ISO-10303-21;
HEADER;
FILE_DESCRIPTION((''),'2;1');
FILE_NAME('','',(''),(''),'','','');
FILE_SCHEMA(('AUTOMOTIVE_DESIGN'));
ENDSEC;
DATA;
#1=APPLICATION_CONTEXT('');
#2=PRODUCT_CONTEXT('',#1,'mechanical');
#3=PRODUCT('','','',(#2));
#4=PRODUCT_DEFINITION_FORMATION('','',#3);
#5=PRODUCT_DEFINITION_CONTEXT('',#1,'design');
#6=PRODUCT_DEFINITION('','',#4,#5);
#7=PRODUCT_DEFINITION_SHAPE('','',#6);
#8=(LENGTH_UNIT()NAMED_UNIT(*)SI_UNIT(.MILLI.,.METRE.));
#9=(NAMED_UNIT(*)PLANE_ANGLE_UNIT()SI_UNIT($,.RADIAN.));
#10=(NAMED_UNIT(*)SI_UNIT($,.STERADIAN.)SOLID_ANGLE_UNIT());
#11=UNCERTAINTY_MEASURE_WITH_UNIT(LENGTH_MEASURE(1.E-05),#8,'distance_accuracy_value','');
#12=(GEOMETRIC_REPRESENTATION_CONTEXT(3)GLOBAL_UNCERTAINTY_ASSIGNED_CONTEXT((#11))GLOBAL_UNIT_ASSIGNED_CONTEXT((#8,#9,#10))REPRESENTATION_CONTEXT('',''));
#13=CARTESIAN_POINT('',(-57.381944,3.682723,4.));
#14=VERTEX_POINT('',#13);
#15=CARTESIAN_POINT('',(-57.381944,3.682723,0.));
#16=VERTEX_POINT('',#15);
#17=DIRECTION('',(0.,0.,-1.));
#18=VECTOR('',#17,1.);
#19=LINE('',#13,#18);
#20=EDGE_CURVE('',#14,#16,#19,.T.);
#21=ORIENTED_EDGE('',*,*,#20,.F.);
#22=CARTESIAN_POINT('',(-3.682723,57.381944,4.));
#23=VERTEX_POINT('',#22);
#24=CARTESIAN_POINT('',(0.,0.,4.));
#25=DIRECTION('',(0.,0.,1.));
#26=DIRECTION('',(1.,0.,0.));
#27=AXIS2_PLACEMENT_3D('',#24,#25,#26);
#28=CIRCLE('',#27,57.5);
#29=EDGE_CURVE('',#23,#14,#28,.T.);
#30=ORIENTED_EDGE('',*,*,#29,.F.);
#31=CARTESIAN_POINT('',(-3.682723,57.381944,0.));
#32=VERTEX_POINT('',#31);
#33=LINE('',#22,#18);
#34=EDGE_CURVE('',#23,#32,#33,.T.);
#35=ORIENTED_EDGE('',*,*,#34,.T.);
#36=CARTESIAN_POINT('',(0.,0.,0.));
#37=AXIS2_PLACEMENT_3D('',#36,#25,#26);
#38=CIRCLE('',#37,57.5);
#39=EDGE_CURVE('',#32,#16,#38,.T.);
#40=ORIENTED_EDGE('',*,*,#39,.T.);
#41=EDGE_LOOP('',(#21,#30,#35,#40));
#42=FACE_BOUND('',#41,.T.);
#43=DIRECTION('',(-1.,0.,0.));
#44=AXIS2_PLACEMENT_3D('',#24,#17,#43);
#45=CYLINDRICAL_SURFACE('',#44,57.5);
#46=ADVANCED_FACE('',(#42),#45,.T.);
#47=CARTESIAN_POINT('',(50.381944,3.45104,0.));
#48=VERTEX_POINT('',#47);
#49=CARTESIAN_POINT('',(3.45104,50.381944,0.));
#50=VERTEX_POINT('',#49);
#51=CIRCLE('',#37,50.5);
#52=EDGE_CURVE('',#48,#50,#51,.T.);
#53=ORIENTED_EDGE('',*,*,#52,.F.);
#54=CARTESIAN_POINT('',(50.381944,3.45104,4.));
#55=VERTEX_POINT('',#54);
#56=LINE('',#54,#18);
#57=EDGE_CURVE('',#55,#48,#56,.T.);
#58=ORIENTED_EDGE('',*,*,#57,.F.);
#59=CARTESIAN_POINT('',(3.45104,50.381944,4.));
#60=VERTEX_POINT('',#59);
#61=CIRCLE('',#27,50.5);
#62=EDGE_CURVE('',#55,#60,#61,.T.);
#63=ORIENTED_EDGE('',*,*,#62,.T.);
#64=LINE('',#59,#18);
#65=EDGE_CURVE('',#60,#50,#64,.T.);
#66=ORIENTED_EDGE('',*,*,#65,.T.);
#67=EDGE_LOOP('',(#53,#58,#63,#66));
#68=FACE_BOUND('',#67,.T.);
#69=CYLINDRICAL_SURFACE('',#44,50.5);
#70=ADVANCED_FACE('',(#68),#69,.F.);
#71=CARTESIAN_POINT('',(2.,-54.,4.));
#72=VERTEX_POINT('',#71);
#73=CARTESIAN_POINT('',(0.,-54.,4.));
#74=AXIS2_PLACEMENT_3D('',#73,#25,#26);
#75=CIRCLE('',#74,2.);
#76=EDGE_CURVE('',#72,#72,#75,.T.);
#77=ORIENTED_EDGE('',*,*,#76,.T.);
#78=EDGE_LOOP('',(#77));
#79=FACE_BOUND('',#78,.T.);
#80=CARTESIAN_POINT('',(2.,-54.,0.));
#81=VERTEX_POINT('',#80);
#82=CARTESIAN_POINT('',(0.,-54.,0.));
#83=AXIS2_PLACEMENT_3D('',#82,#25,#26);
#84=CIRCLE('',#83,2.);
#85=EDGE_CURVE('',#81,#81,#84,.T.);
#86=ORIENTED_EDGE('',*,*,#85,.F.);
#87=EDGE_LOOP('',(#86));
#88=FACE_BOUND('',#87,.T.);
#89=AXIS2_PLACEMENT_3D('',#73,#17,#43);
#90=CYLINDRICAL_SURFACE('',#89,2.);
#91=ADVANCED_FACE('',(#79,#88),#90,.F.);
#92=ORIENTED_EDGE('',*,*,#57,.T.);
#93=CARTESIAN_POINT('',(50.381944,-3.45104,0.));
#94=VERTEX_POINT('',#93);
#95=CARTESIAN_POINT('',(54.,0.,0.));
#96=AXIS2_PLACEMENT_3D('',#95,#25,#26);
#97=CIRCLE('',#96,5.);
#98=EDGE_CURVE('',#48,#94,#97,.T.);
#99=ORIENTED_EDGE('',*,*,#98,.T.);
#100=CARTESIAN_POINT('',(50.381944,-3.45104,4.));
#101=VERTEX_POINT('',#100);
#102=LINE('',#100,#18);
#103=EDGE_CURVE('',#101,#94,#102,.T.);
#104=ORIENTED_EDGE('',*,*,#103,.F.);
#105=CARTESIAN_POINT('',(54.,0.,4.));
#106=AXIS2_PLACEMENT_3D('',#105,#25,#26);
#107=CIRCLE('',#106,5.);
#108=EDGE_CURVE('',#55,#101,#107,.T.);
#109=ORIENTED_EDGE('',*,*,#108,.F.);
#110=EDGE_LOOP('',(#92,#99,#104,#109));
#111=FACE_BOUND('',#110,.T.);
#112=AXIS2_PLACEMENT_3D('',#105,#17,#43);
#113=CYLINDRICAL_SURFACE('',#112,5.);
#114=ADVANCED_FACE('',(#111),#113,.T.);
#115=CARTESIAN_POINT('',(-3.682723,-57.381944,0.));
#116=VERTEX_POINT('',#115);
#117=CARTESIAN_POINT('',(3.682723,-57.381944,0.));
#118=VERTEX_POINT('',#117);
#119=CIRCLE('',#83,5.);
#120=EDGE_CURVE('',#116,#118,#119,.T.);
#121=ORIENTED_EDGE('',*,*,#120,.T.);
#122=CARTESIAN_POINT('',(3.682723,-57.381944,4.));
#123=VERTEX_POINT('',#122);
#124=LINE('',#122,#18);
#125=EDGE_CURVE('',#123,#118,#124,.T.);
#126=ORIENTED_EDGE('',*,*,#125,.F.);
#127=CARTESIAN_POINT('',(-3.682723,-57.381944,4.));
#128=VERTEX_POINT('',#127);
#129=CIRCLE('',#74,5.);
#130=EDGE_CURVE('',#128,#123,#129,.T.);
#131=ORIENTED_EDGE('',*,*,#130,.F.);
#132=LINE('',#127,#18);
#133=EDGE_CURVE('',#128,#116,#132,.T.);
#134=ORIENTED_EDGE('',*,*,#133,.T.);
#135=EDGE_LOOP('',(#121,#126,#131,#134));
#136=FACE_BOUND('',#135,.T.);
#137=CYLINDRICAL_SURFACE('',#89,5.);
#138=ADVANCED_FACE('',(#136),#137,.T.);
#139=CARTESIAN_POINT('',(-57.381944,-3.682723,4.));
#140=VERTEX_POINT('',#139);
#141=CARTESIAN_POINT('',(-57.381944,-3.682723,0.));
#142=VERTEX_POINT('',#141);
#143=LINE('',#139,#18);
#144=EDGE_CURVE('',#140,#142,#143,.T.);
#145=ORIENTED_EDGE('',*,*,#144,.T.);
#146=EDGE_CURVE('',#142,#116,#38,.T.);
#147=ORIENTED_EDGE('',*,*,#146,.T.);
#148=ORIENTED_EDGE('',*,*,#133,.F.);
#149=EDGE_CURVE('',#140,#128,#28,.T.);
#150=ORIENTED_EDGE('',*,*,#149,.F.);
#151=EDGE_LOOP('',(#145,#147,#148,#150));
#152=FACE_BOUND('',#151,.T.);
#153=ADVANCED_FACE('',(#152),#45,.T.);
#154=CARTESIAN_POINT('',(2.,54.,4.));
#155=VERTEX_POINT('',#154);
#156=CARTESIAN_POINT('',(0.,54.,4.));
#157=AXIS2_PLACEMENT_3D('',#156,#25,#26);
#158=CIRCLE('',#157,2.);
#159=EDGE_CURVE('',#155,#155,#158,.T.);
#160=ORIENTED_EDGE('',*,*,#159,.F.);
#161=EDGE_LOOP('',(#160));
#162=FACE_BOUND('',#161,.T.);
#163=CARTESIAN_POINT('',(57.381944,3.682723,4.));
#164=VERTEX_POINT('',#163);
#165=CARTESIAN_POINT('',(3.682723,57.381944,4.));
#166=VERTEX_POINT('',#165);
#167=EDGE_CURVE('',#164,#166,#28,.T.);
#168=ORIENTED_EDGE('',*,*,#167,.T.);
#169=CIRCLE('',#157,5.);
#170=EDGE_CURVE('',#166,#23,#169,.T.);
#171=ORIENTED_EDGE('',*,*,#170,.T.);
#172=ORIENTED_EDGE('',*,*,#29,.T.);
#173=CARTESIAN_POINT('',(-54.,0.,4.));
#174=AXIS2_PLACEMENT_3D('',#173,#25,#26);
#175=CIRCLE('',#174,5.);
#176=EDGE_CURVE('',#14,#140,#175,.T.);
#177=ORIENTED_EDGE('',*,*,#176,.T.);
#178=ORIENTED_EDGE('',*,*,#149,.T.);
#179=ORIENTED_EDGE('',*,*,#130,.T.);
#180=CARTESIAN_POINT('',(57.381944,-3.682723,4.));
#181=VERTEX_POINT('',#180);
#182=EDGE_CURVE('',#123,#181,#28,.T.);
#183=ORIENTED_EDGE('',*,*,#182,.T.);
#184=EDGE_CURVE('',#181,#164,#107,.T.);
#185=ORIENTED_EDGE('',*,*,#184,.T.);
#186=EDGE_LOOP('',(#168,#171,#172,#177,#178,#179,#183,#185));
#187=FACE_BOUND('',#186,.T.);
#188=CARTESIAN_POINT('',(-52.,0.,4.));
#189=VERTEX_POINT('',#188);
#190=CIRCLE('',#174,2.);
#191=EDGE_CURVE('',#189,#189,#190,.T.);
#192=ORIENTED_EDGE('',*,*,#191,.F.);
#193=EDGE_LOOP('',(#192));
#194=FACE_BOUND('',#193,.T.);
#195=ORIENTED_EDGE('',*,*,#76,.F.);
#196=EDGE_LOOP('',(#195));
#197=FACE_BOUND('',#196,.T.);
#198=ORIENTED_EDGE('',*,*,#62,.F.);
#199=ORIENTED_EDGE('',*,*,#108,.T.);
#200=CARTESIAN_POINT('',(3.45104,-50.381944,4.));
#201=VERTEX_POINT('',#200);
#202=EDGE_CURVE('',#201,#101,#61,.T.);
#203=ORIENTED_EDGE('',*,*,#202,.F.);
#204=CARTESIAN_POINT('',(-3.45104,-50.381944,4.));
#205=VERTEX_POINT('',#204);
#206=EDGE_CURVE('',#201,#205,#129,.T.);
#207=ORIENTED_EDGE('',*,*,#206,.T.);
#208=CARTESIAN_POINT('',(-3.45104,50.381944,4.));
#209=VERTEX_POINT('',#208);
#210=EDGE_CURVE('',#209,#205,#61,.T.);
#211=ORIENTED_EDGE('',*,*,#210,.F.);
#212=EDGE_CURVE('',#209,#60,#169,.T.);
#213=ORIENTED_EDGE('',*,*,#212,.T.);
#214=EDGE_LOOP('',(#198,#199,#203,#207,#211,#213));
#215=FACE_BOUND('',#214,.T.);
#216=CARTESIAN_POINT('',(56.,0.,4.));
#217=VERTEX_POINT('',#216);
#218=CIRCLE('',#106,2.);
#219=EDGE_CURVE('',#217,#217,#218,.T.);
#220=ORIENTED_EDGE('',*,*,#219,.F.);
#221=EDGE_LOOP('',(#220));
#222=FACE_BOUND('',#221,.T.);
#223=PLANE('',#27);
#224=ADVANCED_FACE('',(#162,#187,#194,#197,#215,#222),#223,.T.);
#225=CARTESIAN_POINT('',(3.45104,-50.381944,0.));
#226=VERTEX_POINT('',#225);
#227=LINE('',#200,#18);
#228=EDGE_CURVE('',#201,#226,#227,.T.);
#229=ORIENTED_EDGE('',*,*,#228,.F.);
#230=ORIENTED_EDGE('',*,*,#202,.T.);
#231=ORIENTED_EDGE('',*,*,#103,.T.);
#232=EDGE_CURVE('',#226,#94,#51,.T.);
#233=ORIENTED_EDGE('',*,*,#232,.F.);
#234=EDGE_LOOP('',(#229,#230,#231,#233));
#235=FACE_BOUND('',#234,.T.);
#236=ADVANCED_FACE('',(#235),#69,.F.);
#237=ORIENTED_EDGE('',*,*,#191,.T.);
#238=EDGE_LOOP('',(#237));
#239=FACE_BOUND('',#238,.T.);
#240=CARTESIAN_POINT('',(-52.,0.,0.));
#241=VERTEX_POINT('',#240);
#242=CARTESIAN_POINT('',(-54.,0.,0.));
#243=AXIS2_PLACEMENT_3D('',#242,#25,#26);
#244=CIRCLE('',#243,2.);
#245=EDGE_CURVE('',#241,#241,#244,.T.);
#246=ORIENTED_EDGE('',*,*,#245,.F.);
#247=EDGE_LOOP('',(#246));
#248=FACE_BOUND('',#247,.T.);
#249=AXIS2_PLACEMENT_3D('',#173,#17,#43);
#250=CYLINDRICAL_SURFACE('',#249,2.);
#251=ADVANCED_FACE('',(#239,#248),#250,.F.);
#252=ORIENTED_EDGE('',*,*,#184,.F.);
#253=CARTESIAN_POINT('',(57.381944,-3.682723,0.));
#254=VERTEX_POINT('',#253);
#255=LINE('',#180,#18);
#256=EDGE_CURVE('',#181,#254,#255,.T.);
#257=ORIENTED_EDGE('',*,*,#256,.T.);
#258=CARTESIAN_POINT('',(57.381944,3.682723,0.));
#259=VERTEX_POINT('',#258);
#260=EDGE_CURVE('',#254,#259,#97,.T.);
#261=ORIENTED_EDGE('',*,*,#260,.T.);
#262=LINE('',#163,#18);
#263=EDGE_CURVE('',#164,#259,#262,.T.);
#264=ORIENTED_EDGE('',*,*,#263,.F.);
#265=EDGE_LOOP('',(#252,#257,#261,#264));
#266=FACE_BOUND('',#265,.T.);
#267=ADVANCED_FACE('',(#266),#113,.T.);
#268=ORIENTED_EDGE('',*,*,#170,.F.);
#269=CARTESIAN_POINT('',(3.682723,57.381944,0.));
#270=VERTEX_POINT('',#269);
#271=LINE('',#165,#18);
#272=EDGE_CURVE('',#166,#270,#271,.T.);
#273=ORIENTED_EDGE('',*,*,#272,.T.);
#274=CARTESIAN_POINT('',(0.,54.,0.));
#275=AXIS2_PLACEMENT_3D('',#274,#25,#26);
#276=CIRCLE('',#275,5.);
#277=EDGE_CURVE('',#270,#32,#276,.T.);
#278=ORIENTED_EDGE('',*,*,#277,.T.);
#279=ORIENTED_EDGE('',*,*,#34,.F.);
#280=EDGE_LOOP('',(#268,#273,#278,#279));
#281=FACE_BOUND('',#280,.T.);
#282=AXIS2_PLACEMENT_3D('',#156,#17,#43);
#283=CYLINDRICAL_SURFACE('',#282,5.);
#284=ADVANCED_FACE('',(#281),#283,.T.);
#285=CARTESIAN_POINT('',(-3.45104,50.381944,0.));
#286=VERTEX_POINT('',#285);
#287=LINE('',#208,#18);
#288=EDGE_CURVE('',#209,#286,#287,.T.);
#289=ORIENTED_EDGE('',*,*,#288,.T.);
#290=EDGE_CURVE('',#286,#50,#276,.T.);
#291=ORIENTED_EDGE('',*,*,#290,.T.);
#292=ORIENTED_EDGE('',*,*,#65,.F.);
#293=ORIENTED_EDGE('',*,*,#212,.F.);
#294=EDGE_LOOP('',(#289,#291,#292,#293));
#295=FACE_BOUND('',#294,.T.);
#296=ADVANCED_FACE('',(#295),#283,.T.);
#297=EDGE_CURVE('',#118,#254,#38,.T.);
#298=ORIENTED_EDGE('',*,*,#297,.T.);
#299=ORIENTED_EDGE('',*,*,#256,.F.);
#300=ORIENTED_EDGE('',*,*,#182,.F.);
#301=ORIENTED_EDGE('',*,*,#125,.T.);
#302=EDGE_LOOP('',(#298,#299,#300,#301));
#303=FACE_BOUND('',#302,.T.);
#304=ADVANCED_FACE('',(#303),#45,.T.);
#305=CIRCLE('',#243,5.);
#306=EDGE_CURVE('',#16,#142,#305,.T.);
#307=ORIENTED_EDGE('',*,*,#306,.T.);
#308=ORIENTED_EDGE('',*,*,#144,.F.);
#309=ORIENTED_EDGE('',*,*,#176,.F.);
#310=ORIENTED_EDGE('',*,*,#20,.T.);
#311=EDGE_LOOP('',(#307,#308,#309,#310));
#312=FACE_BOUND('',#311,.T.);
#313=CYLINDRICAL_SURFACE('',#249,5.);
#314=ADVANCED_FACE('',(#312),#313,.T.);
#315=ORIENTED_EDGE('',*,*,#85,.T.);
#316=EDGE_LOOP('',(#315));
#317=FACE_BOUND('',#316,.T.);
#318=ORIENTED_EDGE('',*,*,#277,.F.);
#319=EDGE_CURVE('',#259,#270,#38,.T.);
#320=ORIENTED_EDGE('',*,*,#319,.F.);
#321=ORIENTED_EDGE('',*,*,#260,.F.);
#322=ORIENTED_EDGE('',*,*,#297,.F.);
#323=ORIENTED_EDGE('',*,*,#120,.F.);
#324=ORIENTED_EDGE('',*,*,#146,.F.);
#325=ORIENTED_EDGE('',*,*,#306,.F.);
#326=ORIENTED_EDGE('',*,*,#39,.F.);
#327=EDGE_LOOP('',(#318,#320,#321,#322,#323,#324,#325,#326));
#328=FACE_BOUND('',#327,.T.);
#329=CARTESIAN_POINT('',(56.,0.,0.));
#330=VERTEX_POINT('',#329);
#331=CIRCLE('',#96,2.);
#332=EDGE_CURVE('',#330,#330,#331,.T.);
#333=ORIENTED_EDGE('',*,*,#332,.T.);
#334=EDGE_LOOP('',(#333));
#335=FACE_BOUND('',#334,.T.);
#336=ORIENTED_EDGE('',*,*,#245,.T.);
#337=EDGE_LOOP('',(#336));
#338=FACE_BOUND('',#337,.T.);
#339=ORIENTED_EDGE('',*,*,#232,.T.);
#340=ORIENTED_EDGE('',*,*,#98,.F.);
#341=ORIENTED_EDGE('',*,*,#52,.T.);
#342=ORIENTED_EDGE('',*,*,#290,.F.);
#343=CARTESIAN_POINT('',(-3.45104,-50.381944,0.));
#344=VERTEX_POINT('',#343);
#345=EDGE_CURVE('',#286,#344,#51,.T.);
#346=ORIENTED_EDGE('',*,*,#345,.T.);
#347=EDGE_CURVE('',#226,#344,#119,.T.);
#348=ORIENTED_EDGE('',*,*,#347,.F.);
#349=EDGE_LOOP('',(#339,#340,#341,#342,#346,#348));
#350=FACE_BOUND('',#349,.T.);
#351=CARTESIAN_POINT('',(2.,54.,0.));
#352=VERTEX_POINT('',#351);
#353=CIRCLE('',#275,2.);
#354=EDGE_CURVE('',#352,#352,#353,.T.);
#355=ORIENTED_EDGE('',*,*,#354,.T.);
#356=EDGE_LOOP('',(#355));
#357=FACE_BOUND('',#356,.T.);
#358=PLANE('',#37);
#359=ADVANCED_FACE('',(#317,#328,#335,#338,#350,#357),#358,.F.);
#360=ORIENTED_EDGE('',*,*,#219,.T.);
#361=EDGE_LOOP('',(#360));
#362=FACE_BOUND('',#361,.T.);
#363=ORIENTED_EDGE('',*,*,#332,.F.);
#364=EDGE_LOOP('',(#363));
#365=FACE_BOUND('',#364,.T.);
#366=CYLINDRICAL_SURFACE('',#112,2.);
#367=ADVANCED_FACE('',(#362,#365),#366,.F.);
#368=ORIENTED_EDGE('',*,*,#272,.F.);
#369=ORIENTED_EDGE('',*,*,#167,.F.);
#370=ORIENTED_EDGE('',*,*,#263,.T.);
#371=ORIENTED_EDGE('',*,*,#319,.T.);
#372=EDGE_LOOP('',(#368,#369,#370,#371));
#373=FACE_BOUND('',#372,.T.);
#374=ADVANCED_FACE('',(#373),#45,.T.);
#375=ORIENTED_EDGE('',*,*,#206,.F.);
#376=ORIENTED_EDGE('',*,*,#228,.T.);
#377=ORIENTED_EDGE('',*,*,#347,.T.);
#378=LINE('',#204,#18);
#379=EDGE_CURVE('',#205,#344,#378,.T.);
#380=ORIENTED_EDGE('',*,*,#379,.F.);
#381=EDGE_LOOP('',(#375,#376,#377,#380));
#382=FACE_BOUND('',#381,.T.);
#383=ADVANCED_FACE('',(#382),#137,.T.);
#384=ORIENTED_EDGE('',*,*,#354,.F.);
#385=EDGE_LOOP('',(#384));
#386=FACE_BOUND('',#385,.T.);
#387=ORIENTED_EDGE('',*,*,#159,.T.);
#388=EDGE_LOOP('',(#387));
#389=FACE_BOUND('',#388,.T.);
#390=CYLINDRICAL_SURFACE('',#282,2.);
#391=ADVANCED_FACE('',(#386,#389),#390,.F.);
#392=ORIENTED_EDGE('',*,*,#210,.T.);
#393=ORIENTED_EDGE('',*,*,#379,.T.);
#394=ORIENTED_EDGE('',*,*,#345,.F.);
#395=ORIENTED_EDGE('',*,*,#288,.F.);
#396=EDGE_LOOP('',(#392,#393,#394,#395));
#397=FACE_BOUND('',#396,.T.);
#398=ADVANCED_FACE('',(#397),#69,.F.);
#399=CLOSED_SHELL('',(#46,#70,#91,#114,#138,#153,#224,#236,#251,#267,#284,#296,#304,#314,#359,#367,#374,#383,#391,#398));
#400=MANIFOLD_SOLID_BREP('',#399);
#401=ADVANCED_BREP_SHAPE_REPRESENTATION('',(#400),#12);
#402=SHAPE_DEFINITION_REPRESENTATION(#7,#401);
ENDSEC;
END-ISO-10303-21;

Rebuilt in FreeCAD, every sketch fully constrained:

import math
import FreeCAD as App
import Part
import Sketcher
Q = App.Units.Quantity

doc = App.newDocument("Part")
body = doc.addObject("PartDesign::Body", "Body")

# Sketch on XY plane
sketch1 = doc.addObject("Sketcher::SketchObject", "Sketch")
body.addObject(sketch1)
sketch1.AttachmentSupport = (doc.XY_Plane, [""])
sketch1.MapMode = "FlatFace"
sketch1.addGeometry(Part.ArcOfCircle(Part.Circle(App.Vector(54, 0, 0), App.Vector(0, 0, 1), 5), math.radians(-47.437902), math.radians(47.437902)), False)
sketch1.addGeometry(Part.ArcOfCircle(Part.Circle(App.Vector(0, 0, 0), App.Vector(0, 0, 1), 57.5), math.radians(3.672157), math.radians(86.327843)), False)
sketch1.addGeometry(Part.ArcOfCircle(Part.Circle(App.Vector(0, 54, 0), App.Vector(0, 0, 1), 5), math.radians(42.562098), math.radians(137.437902)), False)
sketch1.addGeometry(Part.ArcOfCircle(Part.Circle(App.Vector(0, 0, 0), App.Vector(0, 0, 1), 57.5), math.radians(93.672157), math.radians(176.327843)), False)
sketch1.addGeometry(Part.ArcOfCircle(Part.Circle(App.Vector(-54, 0, 0), App.Vector(0, 0, 1), 5), math.radians(132.562098), math.radians(227.437902)), False)
sketch1.addGeometry(Part.ArcOfCircle(Part.Circle(App.Vector(0, 0, 0), App.Vector(0, 0, 1), 57.5), math.radians(-176.327843), math.radians(-93.672157)), False)
sketch1.addGeometry(Part.ArcOfCircle(Part.Circle(App.Vector(0, -54, 0), App.Vector(0, 0, 1), 5), math.radians(-137.437902), math.radians(-42.562098)), False)
sketch1.addGeometry(Part.ArcOfCircle(Part.Circle(App.Vector(0, 0, 0), App.Vector(0, 0, 1), 57.5), math.radians(-86.327843), math.radians(-3.672157)), False)
sketch1.addGeometry(Part.Circle(App.Vector(0, -54, 0), App.Vector(0, 0, 1), 2), False)
sketch1.addGeometry(Part.Circle(App.Vector(-54, 0, 0), App.Vector(0, 0, 1), 2), False)
sketch1.addGeometry(Part.ArcOfCircle(Part.Circle(App.Vector(0, 0, 0), App.Vector(0, 0, 1), 50.5), math.radians(93.9185), math.radians(266.0815)), False)
sketch1.addGeometry(Part.ArcOfCircle(Part.Circle(App.Vector(0, 54, 0), App.Vector(0, 0, 1), 5), math.radians(-133.646569), math.radians(-46.353431)), False)
sketch1.addGeometry(Part.ArcOfCircle(Part.Circle(App.Vector(0, 0, 0), App.Vector(0, 0, 1), 50.5), math.radians(3.9185), math.radians(86.0815)), False)
sketch1.addGeometry(Part.ArcOfCircle(Part.Circle(App.Vector(54, 0, 0), App.Vector(0, 0, 1), 5), math.radians(136.353431), math.radians(223.646569)), False)
sketch1.addGeometry(Part.ArcOfCircle(Part.Circle(App.Vector(0, 0, 0), App.Vector(0, 0, 1), 50.5), math.radians(-86.0815), math.radians(-3.9185)), False)
sketch1.addGeometry(Part.ArcOfCircle(Part.Circle(App.Vector(0, -54, 0), App.Vector(0, 0, 1), 5), math.radians(46.353431), math.radians(133.646569)), False)
sketch1.addGeometry(Part.Circle(App.Vector(54, 0, 0), App.Vector(0, 0, 1), 2), False)
sketch1.addGeometry(Part.Circle(App.Vector(0, 54, 0), App.Vector(0, 0, 1), 2), False)
sketch1.addConstraint(Sketcher.Constraint("Coincident", 0, 2, 1, 1))
sketch1.addConstraint(Sketcher.Constraint("Coincident", 1, 2, 2, 1))
sketch1.addConstraint(Sketcher.Constraint("Coincident", 2, 2, 3, 1))
sketch1.addConstraint(Sketcher.Constraint("Coincident", 3, 2, 4, 1))
sketch1.addConstraint(Sketcher.Constraint("Coincident", 4, 2, 5, 1))
sketch1.addConstraint(Sketcher.Constraint("Coincident", 5, 2, 6, 1))
sketch1.addConstraint(Sketcher.Constraint("Coincident", 6, 2, 7, 1))
sketch1.addConstraint(Sketcher.Constraint("Coincident", 7, 2, 0, 1))
sketch1.addConstraint(Sketcher.Constraint("Coincident", 10, 1, 11, 1))
sketch1.addConstraint(Sketcher.Constraint("Coincident", 11, 2, 12, 2))
sketch1.addConstraint(Sketcher.Constraint("Coincident", 12, 1, 13, 1))
sketch1.addConstraint(Sketcher.Constraint("Coincident", 13, 2, 14, 2))
sketch1.addConstraint(Sketcher.Constraint("Coincident", 14, 1, 15, 1))
sketch1.addConstraint(Sketcher.Constraint("Coincident", 15, 2, 10, 2))
sketch1.addConstraint(Sketcher.Constraint("Coincident", 1, 3, -1, 1))
sketch1.addConstraint(Sketcher.Constraint("Coincident", 3, 3, -1, 1))
sketch1.addConstraint(Sketcher.Constraint("Coincident", 5, 3, -1, 1))
sketch1.addConstraint(Sketcher.Constraint("Coincident", 7, 3, -1, 1))
sketch1.addConstraint(Sketcher.Constraint("Coincident", 10, 3, -1, 1))
sketch1.addConstraint(Sketcher.Constraint("Coincident", 12, 3, -1, 1))
sketch1.addConstraint(Sketcher.Constraint("Coincident", 14, 3, -1, 1))
sketch1.addConstraint(Sketcher.Constraint("Coincident", 8, 3, 6, 3))
sketch1.addConstraint(Sketcher.Constraint("Coincident", 9, 3, 4, 3))
sketch1.addConstraint(Sketcher.Constraint("Coincident", 11, 3, 2, 3))
sketch1.addConstraint(Sketcher.Constraint("Coincident", 13, 3, 0, 3))
sketch1.addConstraint(Sketcher.Constraint("Coincident", 15, 3, 6, 3))
sketch1.addConstraint(Sketcher.Constraint("Coincident", 16, 3, 0, 3))
sketch1.addConstraint(Sketcher.Constraint("Coincident", 17, 3, 2, 3))
sketch1.addConstraint(Sketcher.Constraint("Equal", 0, 2))
sketch1.addConstraint(Sketcher.Constraint("Equal", 1, 3))
sketch1.addConstraint(Sketcher.Constraint("Equal", 2, 4))
sketch1.addConstraint(Sketcher.Constraint("Equal", 3, 5))
sketch1.addConstraint(Sketcher.Constraint("Equal", 4, 6))
sketch1.addConstraint(Sketcher.Constraint("Equal", 5, 7))
sketch1.addConstraint(Sketcher.Constraint("Equal", 8, 9))
sketch1.addConstraint(Sketcher.Constraint("Equal", 6, 11))
sketch1.addConstraint(Sketcher.Constraint("Equal", 10, 12))
sketch1.addConstraint(Sketcher.Constraint("Equal", 11, 13))
sketch1.addConstraint(Sketcher.Constraint("Equal", 12, 14))
sketch1.addConstraint(Sketcher.Constraint("Equal", 13, 15))
sketch1.addConstraint(Sketcher.Constraint("Equal", 9, 16))
sketch1.addConstraint(Sketcher.Constraint("Equal", 16, 17))
sketch1.addConstraint(Sketcher.Constraint("Symmetric", 0, 3, 4, 3, -1, 1))
sketch1.addConstraint(Sketcher.Constraint("Symmetric", 2, 3, 6, 3, -1, 1))
sketch1.addConstraint(Sketcher.Constraint("PointOnObject", 0, 3, -1))
sketch1.addConstraint(Sketcher.Constraint("PointOnObject", 2, 3, -2))
sketch1.addConstraint(Sketcher.Constraint("Diameter", 8, Q("4 mm")))
sketch1.addConstraint(Sketcher.Constraint("Radius", 0, Q("5 mm")))
sketch1.addConstraint(Sketcher.Constraint("Radius", 1, Q("57.5 mm")))
sketch1.addConstraint(Sketcher.Constraint("Radius", 10, Q("50.5 mm")))
sketch1.addConstraint(Sketcher.Constraint("DistanceX", -1, 1, 0, 3, Q("54 mm")))
sketch1.addConstraint(Sketcher.Constraint("DistanceY", -1, 1, 2, 3, Q("54 mm")))
pad1 = doc.addObject("PartDesign::Pad", "Pad")
body.addObject(pad1)
pad1.Profile = sketch1
pad1.Length = 4

doc.recompute()
